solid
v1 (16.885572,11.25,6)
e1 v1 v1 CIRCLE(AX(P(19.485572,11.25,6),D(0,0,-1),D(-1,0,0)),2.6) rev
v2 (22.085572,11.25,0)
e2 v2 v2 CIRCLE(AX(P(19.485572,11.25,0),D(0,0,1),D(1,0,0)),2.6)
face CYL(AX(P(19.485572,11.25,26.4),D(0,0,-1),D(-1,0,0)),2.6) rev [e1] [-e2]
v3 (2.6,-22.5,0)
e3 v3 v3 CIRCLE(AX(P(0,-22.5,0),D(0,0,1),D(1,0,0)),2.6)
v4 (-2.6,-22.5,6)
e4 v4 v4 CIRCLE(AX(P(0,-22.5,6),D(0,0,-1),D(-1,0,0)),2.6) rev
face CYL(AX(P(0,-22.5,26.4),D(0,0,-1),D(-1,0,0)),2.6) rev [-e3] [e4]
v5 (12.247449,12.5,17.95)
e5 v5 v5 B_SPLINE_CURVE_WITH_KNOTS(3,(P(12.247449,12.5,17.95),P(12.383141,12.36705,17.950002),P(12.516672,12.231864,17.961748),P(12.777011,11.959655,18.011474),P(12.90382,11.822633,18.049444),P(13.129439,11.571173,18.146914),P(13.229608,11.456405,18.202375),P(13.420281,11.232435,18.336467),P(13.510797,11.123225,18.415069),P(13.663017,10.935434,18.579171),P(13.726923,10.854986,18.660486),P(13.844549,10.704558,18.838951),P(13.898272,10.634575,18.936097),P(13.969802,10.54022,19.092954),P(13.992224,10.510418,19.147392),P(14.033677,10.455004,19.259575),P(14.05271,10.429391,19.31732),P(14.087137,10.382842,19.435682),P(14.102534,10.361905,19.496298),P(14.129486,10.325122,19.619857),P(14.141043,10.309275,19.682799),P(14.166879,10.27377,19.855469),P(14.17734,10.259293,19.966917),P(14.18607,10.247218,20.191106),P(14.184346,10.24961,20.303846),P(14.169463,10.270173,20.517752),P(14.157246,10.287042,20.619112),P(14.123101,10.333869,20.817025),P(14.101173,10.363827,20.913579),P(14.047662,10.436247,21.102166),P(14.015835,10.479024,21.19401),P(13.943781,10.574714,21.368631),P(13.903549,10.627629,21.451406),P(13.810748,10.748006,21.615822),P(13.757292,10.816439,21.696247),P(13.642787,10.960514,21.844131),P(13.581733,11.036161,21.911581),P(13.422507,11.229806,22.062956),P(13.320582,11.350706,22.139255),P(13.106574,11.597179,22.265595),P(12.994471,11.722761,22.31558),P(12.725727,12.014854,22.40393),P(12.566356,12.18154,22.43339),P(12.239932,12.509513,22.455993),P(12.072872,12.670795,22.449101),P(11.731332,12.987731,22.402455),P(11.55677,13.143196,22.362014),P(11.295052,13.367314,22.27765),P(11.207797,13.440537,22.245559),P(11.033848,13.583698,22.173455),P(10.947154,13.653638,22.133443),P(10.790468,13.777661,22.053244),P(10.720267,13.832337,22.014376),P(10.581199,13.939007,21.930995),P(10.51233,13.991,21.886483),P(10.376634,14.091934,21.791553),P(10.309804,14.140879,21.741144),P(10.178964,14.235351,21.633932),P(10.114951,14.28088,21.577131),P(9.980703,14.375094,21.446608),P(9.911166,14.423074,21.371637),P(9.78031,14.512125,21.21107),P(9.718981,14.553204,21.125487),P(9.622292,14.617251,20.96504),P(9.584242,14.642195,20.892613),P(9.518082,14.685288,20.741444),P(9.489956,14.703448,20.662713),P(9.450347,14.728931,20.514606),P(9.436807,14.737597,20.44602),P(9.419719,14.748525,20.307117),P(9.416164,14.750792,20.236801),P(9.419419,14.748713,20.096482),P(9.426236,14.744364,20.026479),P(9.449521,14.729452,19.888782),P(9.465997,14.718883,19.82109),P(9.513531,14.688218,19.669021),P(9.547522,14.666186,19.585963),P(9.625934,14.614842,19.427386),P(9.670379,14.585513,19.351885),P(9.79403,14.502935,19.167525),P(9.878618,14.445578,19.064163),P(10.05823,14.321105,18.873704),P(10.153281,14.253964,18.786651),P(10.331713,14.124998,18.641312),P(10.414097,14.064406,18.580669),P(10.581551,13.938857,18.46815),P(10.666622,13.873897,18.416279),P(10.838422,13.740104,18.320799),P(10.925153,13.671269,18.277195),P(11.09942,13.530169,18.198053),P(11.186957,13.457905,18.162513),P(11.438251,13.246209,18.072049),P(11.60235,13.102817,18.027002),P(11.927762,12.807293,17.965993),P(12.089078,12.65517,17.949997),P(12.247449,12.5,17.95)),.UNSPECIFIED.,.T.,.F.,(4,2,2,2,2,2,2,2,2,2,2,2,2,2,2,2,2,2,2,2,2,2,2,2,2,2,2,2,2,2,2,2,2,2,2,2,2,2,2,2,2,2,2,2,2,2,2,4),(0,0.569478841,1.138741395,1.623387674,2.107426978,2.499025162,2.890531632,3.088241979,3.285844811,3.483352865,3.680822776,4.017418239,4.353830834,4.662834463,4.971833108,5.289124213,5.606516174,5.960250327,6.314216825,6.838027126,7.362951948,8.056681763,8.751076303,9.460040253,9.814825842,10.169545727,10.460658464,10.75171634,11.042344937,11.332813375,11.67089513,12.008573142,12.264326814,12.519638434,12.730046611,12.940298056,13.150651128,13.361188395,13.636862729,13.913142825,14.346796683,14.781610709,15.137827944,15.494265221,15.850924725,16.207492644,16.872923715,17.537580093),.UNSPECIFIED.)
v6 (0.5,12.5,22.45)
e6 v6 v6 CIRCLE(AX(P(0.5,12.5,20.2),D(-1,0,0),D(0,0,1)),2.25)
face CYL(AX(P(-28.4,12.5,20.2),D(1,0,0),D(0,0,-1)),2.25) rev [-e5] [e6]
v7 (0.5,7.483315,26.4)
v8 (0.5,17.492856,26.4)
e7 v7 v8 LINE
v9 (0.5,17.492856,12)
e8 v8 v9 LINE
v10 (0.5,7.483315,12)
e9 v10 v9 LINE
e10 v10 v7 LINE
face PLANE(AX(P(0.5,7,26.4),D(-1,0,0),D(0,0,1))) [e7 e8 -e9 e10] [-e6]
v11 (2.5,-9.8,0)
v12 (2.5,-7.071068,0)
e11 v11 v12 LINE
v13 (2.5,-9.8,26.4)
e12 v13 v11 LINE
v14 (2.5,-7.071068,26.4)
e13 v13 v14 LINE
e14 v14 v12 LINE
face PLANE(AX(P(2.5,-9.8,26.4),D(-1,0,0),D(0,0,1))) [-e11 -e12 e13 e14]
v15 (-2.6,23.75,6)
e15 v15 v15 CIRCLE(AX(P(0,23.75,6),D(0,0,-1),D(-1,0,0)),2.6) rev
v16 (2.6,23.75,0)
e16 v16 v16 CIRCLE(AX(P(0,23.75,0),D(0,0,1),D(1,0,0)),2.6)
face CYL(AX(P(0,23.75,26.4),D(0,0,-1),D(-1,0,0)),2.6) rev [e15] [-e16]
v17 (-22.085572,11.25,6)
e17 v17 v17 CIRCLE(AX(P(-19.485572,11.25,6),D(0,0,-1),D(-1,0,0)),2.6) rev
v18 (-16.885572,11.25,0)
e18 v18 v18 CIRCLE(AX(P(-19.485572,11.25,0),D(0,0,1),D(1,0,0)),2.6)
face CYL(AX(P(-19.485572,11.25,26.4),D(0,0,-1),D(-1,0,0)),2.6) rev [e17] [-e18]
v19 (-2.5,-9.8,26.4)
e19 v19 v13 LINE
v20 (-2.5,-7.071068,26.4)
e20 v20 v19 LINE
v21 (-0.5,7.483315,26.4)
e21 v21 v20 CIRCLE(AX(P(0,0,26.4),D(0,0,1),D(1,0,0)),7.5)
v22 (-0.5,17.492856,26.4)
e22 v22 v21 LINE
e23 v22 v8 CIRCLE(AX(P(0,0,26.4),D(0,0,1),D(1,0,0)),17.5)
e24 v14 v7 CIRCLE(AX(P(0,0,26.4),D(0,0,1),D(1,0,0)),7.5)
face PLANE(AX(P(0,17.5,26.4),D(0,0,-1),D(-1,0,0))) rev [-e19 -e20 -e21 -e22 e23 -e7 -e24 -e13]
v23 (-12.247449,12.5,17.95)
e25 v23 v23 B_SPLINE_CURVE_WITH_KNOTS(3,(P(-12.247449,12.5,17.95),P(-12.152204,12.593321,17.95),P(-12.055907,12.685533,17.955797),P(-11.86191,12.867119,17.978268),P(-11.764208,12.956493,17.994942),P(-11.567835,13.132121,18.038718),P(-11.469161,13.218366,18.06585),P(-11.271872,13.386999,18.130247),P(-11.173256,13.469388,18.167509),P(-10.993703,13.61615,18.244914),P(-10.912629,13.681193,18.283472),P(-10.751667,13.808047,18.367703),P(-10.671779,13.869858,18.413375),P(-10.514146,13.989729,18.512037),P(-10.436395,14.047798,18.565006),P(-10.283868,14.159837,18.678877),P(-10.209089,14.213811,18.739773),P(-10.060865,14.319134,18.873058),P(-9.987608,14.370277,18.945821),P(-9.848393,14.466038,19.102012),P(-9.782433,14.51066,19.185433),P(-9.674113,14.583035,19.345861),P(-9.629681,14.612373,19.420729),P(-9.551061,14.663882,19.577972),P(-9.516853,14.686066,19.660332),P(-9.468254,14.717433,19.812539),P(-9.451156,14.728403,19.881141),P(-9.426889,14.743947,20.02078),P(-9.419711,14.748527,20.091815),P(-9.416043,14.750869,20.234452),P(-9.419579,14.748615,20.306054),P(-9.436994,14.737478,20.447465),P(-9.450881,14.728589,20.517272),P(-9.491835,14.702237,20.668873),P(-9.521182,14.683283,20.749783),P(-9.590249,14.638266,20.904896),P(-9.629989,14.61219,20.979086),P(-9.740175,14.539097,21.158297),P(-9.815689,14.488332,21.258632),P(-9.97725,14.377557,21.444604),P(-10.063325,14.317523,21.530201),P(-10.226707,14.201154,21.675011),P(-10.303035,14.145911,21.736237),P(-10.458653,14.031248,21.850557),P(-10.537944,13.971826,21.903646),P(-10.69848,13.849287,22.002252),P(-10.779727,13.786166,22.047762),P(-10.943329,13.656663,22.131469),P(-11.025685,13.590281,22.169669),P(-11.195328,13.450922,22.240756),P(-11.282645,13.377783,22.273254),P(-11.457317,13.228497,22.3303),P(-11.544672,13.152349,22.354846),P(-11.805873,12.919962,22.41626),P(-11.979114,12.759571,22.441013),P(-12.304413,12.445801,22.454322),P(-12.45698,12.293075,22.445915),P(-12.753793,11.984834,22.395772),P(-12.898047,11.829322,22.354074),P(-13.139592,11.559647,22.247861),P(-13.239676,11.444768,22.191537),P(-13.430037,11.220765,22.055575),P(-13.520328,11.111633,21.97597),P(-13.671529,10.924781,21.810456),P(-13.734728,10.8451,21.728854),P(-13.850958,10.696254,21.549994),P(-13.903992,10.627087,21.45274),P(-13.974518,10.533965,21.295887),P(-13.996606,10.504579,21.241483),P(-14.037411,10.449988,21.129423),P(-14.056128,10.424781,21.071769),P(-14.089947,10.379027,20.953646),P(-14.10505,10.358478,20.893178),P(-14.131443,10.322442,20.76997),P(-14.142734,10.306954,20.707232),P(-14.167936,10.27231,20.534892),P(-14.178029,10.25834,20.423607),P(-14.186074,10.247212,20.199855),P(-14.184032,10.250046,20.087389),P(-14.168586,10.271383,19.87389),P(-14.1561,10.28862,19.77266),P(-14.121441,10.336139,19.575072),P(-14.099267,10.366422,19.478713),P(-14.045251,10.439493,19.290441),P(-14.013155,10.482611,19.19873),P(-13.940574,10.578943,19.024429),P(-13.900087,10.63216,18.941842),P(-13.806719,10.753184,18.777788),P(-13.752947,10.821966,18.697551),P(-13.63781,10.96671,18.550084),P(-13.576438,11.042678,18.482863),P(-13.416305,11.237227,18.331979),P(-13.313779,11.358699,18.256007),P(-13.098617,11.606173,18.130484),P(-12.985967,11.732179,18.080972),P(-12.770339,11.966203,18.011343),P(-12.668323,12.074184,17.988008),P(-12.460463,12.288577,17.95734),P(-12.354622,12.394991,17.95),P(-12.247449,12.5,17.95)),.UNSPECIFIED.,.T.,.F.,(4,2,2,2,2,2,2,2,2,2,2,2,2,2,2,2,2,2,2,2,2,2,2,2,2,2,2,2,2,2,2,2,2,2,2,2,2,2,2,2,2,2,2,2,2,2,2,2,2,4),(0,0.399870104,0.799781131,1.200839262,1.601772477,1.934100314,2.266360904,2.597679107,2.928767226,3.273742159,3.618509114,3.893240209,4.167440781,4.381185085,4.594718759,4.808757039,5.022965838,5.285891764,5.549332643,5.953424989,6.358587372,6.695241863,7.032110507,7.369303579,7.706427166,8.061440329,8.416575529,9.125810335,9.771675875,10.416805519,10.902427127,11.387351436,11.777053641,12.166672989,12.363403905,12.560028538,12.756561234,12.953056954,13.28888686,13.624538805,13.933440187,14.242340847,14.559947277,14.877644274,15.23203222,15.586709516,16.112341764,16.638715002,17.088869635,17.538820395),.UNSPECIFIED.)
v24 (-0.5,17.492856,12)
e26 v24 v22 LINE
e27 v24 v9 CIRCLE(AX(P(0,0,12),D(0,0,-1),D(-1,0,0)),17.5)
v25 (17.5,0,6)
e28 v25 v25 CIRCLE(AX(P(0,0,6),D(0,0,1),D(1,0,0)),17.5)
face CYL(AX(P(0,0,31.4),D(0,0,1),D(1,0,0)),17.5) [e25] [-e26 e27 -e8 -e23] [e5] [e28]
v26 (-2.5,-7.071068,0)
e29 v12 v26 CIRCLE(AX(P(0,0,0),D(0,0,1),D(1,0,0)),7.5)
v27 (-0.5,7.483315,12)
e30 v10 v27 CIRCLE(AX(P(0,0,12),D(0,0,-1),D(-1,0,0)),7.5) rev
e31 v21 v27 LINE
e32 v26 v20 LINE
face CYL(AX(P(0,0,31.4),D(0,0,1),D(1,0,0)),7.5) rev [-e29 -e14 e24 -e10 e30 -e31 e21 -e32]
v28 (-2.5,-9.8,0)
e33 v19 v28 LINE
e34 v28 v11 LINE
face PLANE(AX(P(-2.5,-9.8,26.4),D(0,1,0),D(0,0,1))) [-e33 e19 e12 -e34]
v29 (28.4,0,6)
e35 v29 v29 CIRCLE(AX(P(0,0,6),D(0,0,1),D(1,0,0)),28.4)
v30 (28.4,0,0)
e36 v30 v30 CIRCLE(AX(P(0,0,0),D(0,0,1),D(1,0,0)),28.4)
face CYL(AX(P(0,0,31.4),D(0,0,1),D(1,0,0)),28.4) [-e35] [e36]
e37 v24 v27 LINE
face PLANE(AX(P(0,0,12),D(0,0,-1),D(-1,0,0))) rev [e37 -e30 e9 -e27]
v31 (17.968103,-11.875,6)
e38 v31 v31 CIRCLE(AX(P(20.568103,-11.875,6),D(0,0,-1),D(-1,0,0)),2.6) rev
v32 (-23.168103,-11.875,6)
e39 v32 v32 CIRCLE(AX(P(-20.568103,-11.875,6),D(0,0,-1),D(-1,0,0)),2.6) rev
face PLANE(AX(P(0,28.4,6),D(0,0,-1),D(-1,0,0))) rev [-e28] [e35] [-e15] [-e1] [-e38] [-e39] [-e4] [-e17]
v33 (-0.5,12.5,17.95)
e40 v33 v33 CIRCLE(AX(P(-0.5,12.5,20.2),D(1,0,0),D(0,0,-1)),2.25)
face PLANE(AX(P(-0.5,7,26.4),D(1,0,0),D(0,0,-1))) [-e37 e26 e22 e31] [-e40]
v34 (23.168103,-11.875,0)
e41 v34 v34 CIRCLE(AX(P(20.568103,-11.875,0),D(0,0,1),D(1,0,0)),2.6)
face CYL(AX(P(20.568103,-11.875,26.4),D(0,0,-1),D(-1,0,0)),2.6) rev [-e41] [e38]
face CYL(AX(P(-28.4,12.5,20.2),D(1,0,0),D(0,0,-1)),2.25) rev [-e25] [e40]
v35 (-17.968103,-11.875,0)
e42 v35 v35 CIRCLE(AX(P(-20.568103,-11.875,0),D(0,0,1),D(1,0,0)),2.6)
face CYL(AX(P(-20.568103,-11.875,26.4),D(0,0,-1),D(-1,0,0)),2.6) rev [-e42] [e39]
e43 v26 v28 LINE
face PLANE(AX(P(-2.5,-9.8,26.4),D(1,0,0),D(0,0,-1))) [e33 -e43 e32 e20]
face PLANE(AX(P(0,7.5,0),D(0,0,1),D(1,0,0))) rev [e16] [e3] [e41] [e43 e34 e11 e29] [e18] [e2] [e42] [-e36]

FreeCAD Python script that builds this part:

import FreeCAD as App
import Part
import Sketcher

V = App.Vector

doc = App.newDocument("Part")
body = doc.addObject("PartDesign::Body", "Body")

sketch1 = body.newObject("Sketcher::SketchObject", "Sketch")
sketch1.AttachmentSupport = (doc.getObject("YZ_Plane"), [""])
sketch1.MapMode = "FlatFace"
sketch1.addGeometry([
    Part.LineSegment(V(7.5, 0, 0), V(28.4, 0, 0)),
    Part.LineSegment(V(28.4, 0, 0), V(28.4, 6, 0)),
    Part.LineSegment(V(28.4, 6, 0), V(17.5, 6, 0)),
    Part.LineSegment(V(17.5, 6, 0), V(17.5, 26.4, 0)),
    Part.LineSegment(V(17.5, 26.4, 0), V(7.5, 26.4, 0)),
    Part.LineSegment(V(7.5, 26.4, 0), V(7.5, 0, 0)),
], False)
sketch1.addConstraint([
    Sketcher.Constraint("Coincident", 0, 2, 1, 1),
    Sketcher.Constraint("Coincident", 1, 2, 2, 1),
    Sketcher.Constraint("Coincident", 2, 2, 3, 1),
    Sketcher.Constraint("Coincident", 3, 2, 4, 1),
    Sketcher.Constraint("Coincident", 4, 2, 5, 1),
    Sketcher.Constraint("Coincident", 5, 2, 0, 1),
    Sketcher.Constraint("Horizontal", 0),
    Sketcher.Constraint("Vertical", 1),
    Sketcher.Constraint("Horizontal", 2),
    Sketcher.Constraint("Vertical", 3),
    Sketcher.Constraint("Horizontal", 4),
    Sketcher.Constraint("Vertical", 5),
    Sketcher.Constraint("PointOnObject", 0, 2, -1),
    Sketcher.Constraint("DistanceX", 4, 2, 4, 1, 10.0),
    Sketcher.Constraint("DistanceY", 1, 1, 1, 2, 6.0),
    Sketcher.Constraint("DistanceX", 0, 1, 0, 2, 20.9),
    Sketcher.Constraint("DistanceY", 3, 1, 3, 2, 20.4),
    Sketcher.Constraint("DistanceX", -1, 1, 0, 2, 28.4),
])
revolution = body.newObject("PartDesign::Revolution", "Revolution")
revolution.Profile = sketch1
revolution.ReferenceAxis = (sketch1, ["V_Axis"])
revolution.Angle = 360

sketch2 = body.newObject("Sketcher::SketchObject", "Sketch001")
sketch2.AttachmentSupport = (doc.getObject("XY_Plane"), [""])
sketch2.MapMode = "FlatFace"
sketch2.addGeometry([
    Part.Circle(V(0, 23.75, 0), V(0, 0, 1), 2.6),
    Part.Circle(V(-20.568103, -11.875, 0), V(0, 0, 1), 2.6),
    Part.Circle(V(20.568103, -11.875, 0), V(0, 0, 1), 2.6),
    Part.Circle(V(19.485572, 11.25, 0), V(0, 0, 1), 2.6),
    Part.Circle(V(-19.485572, 11.25, 0), V(0, 0, 1), 2.6),
    Part.Circle(V(0, -22.5, 0), V(0, 0, 1), 2.6),
], False)
sketch2.addConstraint([
    Sketcher.Constraint("Equal", 0, 1),
    Sketcher.Constraint("Equal", 1, 2),
    Sketcher.Constraint("Equal", 2, 3),
    Sketcher.Constraint("Equal", 3, 4),
    Sketcher.Constraint("Equal", 4, 5),
    Sketcher.Constraint("Symmetric", 1, 3, 2, 3, -2),
    Sketcher.Constraint("Symmetric", 3, 3, 4, 3, -2),
    Sketcher.Constraint("PointOnObject", 0, 3, -2),
    Sketcher.Constraint("PointOnObject", 5, 3, -2),
    Sketcher.Constraint("Diameter", 0, 5.2),
    Sketcher.Constraint("DistanceY", 5, 3, -1, 1, 22.5),
    Sketcher.Constraint("DistanceY", 3, 3, 0, 3, 12.5),
    Sketcher.Constraint("DistanceY", -1, 1, 0, 3, 23.75),
    Sketcher.Constraint("DistanceY", 1, 3, -1, 1, 11.875),
    Sketcher.Constraint("DistanceX", -1, 1, 3, 3, 19.485572),
    Sketcher.Constraint("DistanceX", 3, 3, 2, 3, 1.082532),
])
pocket1 = body.newObject("PartDesign::Pocket", "Pocket")
pocket1.Profile = sketch2
pocket1.Type = "ThroughAll"
pocket1.Reversed = True

sketch3 = body.newObject("Sketcher::SketchObject", "Sketch002")
sketch3.AttachmentSupport = (doc.getObject("XY_Plane"), [""])
sketch3.MapMode = "FlatFace"
sketch3.addGeometry([
    Part.LineSegment(V(-2.5, -6.5, 0), V(-2.5, -9.8, 0)),
    Part.LineSegment(V(-2.5, -9.8, 0), V(2.5, -9.8, 0)),
    Part.LineSegment(V(2.5, -9.8, 0), V(2.5, -6.5, 0)),
    Part.LineSegment(V(2.5, -6.5, 0), V(-2.5, -6.5, 0)),
], False)
sketch3.addConstraint([
    Sketcher.Constraint("Coincident", 0, 2, 1, 1),
    Sketcher.Constraint("Coincident", 1, 2, 2, 1),
    Sketcher.Constraint("Coincident", 2, 2, 3, 1),
    Sketcher.Constraint("Coincident", 3, 2, 0, 1),
    Sketcher.Constraint("Vertical", 0),
    Sketcher.Constraint("Horizontal", 1),
    Sketcher.Constraint("Vertical", 2),
    Sketcher.Constraint("Horizontal", 3),
    Sketcher.Constraint("DistanceX", 1, 1, 1, 2, 5.0),
    Sketcher.Constraint("DistanceY", 0, 2, 0, 1, 3.3),
    Sketcher.Constraint("DistanceX", 0, 2, -1, 1, 2.5),
    Sketcher.Constraint("DistanceY", 0, 2, -1, 1, 9.8),
])
pocket2 = body.newObject("PartDesign::Pocket", "Pocket001")
pocket2.Profile = sketch3
pocket2.Type = "ThroughAll"
pocket2.Reversed = True

sketch4 = body.newObject("Sketcher::SketchObject", "Sketch003")
sketch4.AttachmentSupport = (doc.getObject("XY_Plane"), [""])
sketch4.MapMode = "FlatFace"
sketch4.AttachmentOffset = App.Placement(V(0, 0, 12), App.Rotation())
sketch4.addGeometry([
    Part.LineSegment(V(-0.5, 18, 0), V(-0.5, 7, 0)),
    Part.LineSegment(V(-0.5, 7, 0), V(0.5, 7, 0)),
    Part.LineSegment(V(0.5, 7, 0), V(0.5, 18, 0)),
    Part.LineSegment(V(0.5, 18, 0), V(-0.5, 18, 0)),
], False)
sketch4.addConstraint([
    Sketcher.Constraint("Coincident", 0, 2, 1, 1),
    Sketcher.Constraint("Coincident", 1, 2, 2, 1),
    Sketcher.Constraint("Coincident", 2, 2, 3, 1),
    Sketcher.Constraint("Coincident", 3, 2, 0, 1),
    Sketcher.Constraint("Vertical", 0),
    Sketcher.Constraint("Horizontal", 1),
    Sketcher.Constraint("Vertical", 2),
    Sketcher.Constraint("Horizontal", 3),
    Sketcher.Constraint("DistanceX", 1, 1, 1, 2, 1.0),
    Sketcher.Constraint("DistanceY", 0, 2, 0, 1, 11.0),
    Sketcher.Constraint("DistanceY", -1, 1, 0, 2, 7.0),
    Sketcher.Constraint("DistanceX", 0, 2, -1, 1, 0.5),
])
pocket3 = body.newObject("PartDesign::Pocket", "Pocket002")
pocket3.Profile = sketch4
pocket3.Length = 14.4
pocket3.Reversed = True

sketch5 = body.newObject("Sketcher::SketchObject", "Sketch004")
sketch5.AttachmentSupport = (doc.getObject("YZ_Plane"), [""])
sketch5.MapMode = "FlatFace"
sketch5.addGeometry(Part.Circle(V(12.5, 20.2, 0), V(0, 0, 1), 2.25), False)
sketch5.addConstraint([
    Sketcher.Constraint("Diameter", 0, 4.5),
    Sketcher.Constraint("DistanceX", -1, 1, 0, 3, 12.5),
    Sketcher.Constraint("DistanceY", -1, 1, 0, 3, 20.2),
])
pocket4 = body.newObject("PartDesign::Pocket", "Pocket003")
pocket4.Profile = sketch5
pocket4.Type = "ThroughAll"
pocket4.Midplane = True

doc.recompute()
